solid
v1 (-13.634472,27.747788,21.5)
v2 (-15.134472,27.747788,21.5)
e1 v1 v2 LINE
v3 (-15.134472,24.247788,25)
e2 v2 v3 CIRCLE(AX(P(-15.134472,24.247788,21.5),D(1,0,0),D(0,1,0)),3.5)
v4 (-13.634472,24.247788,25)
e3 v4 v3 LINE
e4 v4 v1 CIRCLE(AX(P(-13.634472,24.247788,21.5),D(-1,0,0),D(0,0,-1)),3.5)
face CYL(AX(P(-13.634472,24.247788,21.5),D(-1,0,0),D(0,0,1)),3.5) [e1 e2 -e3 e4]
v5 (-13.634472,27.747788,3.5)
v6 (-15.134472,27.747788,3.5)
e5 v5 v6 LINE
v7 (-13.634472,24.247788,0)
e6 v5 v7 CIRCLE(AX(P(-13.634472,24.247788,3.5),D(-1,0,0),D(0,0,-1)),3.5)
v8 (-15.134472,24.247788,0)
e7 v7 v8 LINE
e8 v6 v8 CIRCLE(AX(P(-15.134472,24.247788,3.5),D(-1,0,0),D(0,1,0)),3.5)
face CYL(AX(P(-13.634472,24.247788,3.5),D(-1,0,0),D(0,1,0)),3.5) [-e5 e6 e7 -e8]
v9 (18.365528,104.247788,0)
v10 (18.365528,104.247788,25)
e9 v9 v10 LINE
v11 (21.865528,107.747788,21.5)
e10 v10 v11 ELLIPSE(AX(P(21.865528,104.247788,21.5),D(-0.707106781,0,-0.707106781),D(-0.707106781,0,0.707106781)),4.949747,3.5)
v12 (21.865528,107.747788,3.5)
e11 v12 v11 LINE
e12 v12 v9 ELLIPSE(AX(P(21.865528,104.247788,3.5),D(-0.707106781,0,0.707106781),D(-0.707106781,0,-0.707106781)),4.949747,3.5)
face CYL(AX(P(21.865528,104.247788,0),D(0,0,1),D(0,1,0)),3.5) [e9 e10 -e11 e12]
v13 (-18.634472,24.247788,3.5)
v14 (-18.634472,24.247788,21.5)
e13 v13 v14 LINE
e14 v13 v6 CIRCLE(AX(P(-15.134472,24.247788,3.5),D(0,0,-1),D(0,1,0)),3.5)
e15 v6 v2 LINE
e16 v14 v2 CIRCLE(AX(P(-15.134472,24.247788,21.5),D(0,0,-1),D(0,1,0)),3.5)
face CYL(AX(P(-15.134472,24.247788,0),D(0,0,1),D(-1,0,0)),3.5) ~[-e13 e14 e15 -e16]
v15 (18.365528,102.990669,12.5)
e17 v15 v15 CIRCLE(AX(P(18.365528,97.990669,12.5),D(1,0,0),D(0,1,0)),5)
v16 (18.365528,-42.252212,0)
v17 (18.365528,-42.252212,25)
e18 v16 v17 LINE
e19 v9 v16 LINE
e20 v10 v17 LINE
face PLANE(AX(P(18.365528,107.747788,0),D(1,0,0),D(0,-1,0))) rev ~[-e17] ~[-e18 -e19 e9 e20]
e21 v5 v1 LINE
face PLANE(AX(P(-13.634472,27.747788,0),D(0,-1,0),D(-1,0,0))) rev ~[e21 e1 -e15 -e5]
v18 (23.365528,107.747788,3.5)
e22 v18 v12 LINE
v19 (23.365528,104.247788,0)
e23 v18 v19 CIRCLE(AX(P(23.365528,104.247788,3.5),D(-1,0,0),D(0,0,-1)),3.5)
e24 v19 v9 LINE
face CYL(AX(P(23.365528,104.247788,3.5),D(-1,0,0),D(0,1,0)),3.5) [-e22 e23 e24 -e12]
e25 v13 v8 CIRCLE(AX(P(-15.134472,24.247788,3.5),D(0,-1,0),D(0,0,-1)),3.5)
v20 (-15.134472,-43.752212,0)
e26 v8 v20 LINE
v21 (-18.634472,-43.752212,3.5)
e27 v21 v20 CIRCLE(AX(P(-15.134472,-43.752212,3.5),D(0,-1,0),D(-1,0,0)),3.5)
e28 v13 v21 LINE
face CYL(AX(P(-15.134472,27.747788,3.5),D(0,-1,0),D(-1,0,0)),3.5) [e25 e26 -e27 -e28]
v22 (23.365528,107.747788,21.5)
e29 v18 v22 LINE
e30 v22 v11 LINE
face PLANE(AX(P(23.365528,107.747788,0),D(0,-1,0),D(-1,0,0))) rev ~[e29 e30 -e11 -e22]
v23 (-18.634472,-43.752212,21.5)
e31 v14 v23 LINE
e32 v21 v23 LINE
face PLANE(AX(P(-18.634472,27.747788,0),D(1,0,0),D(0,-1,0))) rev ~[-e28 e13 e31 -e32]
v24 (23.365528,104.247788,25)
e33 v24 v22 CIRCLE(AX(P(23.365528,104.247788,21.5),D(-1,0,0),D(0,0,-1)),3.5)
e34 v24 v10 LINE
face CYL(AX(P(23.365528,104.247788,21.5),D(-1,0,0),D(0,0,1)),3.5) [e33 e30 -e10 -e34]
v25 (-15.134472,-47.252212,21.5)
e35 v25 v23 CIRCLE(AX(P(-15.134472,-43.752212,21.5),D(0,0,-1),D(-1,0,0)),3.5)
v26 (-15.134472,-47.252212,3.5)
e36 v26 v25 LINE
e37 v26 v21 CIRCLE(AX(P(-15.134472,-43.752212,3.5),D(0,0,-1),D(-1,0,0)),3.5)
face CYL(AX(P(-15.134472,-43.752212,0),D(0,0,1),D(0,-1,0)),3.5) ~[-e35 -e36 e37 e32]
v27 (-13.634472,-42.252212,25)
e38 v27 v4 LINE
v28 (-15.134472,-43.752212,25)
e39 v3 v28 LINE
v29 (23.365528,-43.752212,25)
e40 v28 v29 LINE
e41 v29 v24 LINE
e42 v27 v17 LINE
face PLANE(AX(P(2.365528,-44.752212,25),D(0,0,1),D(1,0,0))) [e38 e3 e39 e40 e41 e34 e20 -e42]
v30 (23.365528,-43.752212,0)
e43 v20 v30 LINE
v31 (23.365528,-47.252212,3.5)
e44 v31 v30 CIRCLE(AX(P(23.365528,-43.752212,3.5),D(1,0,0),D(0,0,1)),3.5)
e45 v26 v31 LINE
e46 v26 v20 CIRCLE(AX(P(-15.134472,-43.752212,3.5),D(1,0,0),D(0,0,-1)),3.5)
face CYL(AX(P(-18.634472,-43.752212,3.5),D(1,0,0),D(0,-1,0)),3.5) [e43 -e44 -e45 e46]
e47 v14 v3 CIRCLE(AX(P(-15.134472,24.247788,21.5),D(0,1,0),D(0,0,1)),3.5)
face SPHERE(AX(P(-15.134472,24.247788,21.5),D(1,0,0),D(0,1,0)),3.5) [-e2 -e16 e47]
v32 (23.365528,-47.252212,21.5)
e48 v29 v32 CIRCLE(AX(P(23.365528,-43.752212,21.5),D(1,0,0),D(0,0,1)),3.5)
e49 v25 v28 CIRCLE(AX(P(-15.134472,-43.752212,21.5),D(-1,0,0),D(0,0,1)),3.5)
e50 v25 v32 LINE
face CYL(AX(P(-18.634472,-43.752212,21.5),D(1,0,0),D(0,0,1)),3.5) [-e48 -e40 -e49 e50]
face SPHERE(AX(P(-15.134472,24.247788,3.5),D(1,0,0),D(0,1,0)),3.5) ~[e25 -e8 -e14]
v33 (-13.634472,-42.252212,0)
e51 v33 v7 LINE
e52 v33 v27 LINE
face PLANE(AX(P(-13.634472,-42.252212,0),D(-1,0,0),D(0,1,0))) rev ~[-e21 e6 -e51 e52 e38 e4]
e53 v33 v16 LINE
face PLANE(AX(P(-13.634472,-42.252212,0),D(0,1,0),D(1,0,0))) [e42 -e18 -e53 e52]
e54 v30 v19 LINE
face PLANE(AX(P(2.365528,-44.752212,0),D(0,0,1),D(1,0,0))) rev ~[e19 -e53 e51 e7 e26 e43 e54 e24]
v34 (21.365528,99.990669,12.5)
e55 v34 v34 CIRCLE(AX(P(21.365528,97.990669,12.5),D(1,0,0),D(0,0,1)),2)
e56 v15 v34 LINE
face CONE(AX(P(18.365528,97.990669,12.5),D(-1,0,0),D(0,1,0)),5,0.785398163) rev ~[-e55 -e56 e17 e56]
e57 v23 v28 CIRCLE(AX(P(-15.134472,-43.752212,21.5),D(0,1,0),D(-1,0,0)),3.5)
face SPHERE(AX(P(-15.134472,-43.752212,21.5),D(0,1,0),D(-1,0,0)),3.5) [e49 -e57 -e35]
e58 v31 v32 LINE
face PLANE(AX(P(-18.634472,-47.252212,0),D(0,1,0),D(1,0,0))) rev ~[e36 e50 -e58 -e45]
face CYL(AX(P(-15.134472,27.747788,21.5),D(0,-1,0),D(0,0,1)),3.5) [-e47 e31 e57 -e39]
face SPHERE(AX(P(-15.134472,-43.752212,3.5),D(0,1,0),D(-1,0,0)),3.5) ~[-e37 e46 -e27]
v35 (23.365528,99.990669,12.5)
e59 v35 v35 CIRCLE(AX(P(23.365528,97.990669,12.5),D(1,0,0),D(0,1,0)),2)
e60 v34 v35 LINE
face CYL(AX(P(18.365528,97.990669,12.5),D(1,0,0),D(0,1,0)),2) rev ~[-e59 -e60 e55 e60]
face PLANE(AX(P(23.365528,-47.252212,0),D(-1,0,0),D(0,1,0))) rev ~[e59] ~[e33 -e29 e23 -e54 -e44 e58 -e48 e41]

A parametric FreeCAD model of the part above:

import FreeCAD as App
import Part
import Sketcher

V = App.Vector


def edges_at(feature, points):
    """Names of the edges that pass closest to the given points."""
    edges = feature.Shape.Edges
    near = lambda p: min(range(len(edges)), key=lambda i: edges[i].distToShape(Part.Vertex(*p))[0])
    return sorted({f"Edge{near(p) + 1}" for p in points})


def add_polygon(sketch, points):
    """Adds a closed chain of lines whose ends are joined by coincident constraints."""
    first, n = sketch.GeometryCount, len(points)
    for a, b in zip(points, points[1:] + points[:1]):
        sketch.addGeometry(Part.LineSegment(App.Vector(*a, 0), App.Vector(*b, 0)), False)
    for i in range(n):
        sketch.addConstraint(Sketcher.Constraint("Coincident", first + i, 2, first + (i + 1) % n, 1))

doc = App.newDocument("Part")
body = doc.addObject("PartDesign::Body", "Body")

sketch1 = body.newObject("Sketcher::SketchObject", "Sketch")
sketch1.AttachmentSupport = (doc.getObject("XY_Plane"), [""])
sketch1.MapMode = "FlatFace"
add_polygon(sketch1, [(18.365528, -42.252212), (-13.634472, -42.252212), (-13.634472, 27.747788), (-18.634472, 27.747788), (-18.634472, -47.252212), (23.365528, -47.252212), (23.365528, 107.747788), (18.365528, 107.747788)])
sketch1.addConstraint(Sketcher.Constraint("Horizontal", 0))
sketch1.addConstraint(Sketcher.Constraint("Vertical", 1))
sketch1.addConstraint(Sketcher.Constraint("Horizontal", 2))
sketch1.addConstraint(Sketcher.Constraint("Vertical", 3))
sketch1.addConstraint(Sketcher.Constraint("Horizontal", 4))
sketch1.addConstraint(Sketcher.Constraint("Vertical", 5))
sketch1.addConstraint(Sketcher.Constraint("Horizontal", 6))
sketch1.addConstraint(Sketcher.Constraint("Vertical", 7))
sketch1.addConstraint(Sketcher.Constraint("Equal", 2, 6))
sketch1.addConstraint(Sketcher.Constraint("DistanceX", 0, 2, 0, 1, 32.0))
sketch1.addConstraint(Sketcher.Constraint("DistanceX", 2, 2, 2, 1, 5.0))
sketch1.addConstraint(Sketcher.Constraint("DistanceY", 1, 1, 1, 2, 70.0))
sketch1.addConstraint(Sketcher.Constraint("DistanceY", 3, 2, 3, 1, 75.0))
sketch1.addConstraint(Sketcher.Constraint("DistanceY", 5, 1, 5, 2, 155.0))
sketch1.addConstraint(Sketcher.Constraint("DistanceY", -1, 1, 1, 2, 27.747788))
sketch1.addConstraint(Sketcher.Constraint("DistanceX", 2, 2, -1, 1, 18.634472))
pad1 = body.newObject("PartDesign::Pad", "Pad")
pad1.Profile = sketch1
pad1.Length = 25

sketch2 = body.newObject("Sketcher::SketchObject", "Sketch001")
sketch2.AttachmentSupport = (doc.getObject("YZ_Plane"), [""])
sketch2.MapMode = "FlatFace"
sketch2.AttachmentOffset = App.Placement(V(0, 0, 18.365528), App.Rotation())
sketch2.addGeometry(Part.Circle(V(97.990669, 12.5, 0), V(0, 0, 1), 2), False)
sketch2.addConstraint(Sketcher.Constraint("Diameter", 0, 4.0))
sketch2.addConstraint(Sketcher.Constraint("DistanceY", -1, 1, 0, 3, 12.5))
sketch2.addConstraint(Sketcher.Constraint("DistanceX", -1, 1, 0, 3, 97.990669))
doc.recompute()
hole = body.newObject("PartDesign::Hole", "Hole")
hole.Profile = sketch2
hole.ThreadType = "None"
hole.Diameter = 4
hole.DepthType = "ThroughAll"
hole.HoleCutType = "Countersink"
hole.HoleCutDiameter = 10
hole.HoleCutCountersinkAngle = 90
hole.Reversed = True
doc.recompute()

fillet = body.newObject("PartDesign::Fillet", "Fillet")
fillet.Base = (hole, edges_at(hole, [
    (-16.134, 27.748, 0),
    (-16.134, 27.748, 25),
    (20.866, 107.748, 0),
    (20.866, 107.748, 25),
    (-18.634, 27.748, 12.5),
    (-18.634, -9.752, 25),
    (-18.634, -9.752, 0),
    (-18.634, -47.252, 12.5),
    (2.366, -47.252, 25),
    (2.366, -47.252, 0),
    (18.366, 107.748, 12.5),
]))
fillet.Radius = 3.5

doc.recompute()
